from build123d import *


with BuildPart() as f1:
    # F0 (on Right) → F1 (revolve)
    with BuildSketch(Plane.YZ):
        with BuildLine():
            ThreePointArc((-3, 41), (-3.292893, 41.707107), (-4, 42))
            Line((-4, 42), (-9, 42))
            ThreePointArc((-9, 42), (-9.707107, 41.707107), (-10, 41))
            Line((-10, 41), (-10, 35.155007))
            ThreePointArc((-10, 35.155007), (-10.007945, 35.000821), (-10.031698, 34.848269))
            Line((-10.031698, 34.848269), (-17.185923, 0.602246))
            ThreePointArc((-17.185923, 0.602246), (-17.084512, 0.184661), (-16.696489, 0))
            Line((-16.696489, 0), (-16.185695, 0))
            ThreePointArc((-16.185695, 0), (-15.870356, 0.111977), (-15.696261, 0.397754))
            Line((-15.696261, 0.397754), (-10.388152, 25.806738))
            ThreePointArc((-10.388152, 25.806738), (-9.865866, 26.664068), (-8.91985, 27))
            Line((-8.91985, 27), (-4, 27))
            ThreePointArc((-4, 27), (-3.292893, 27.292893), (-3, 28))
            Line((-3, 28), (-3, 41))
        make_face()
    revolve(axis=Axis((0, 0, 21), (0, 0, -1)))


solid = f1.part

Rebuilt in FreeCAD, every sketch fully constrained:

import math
import FreeCAD as App
import Part
import Sketcher

doc = App.newDocument("Part")
body = doc.addObject("PartDesign::Body", "Body")

# Sketch on YZ plane
sketch1 = body.newObject("Sketcher::SketchObject", "Sketch")
sketch1.AttachmentSupport = (doc.getObject("YZ_Plane"), [""])
sketch1.MapMode = "FlatFace"
sketch1.addGeometry([
    Part.ArcOfCircle(Part.Circle(App.Vector(-3.999999, 41.000001, 0), App.Vector(0, 0, 1), 0.999999), math.radians(-0.000043), math.radians(90.000043)),  # 0
    Part.LineSegment(App.Vector(-4, 42, 0), App.Vector(-9, 42, 0)),  # 1
    Part.ArcOfCircle(Part.Circle(App.Vector(-9.000001, 41.000001, 0), App.Vector(0, 0, 1), 0.999999), math.radians(89.999957), math.radians(180.000043)),  # 2
    Part.LineSegment(App.Vector(-10, 41, 0), App.Vector(-10, 35.155007, 0)),  # 3
    Part.ArcOfCircle(Part.Circle(App.Vector(-11.499877, 35.154996, 0), App.Vector(0, 0, 1), 1.499877), math.radians(-11.800315), math.radians(0.000421)),  # 4
    Part.LineSegment(App.Vector(-10.031698, 34.848269, 0), App.Vector(-17.185923, 0.602246, 0)),  # 5
    Part.ArcOfCircle(Part.Circle(App.Vector(-16.69649, 0.499999, 0), App.Vector(0, 0, 1), 0.499999), math.radians(168.200087), math.radians(270.000137)),  # 6
    Part.LineSegment(App.Vector(-16.696489, 0, 0), App.Vector(-16.185695, 0, 0)),  # 7
    Part.ArcOfCircle(Part.Circle(App.Vector(-16.185693, 0.499998, 0), App.Vector(0, 0, 1), 0.499998), math.radians(-90.000183), math.radians(-11.799567)),  # 8
    Part.LineSegment(App.Vector(-15.696261, 0.397754, 0), App.Vector(-10.388152, 25.806738, 0)),  # 9
    Part.ArcOfCircle(Part.Circle(App.Vector(-8.919851, 25.500001, 0), App.Vector(0, 0, 1), 1.499999), math.radians(89.999969), math.radians(168.200282)),  # 10
    Part.LineSegment(App.Vector(-8.91985, 27, 0), App.Vector(-4, 27, 0)),  # 11
    Part.ArcOfCircle(Part.Circle(App.Vector(-3.999999, 27.999999, 0), App.Vector(0, 0, 1), 0.999999), math.radians(-90.000043), math.radians(0.000043)),  # 12
    Part.LineSegment(App.Vector(-3, 28, 0), App.Vector(-3, 41, 0)),  # 13
], False)
sketch1.addConstraint([
    Sketcher.Constraint("Coincident", 0, 2, 1, 1),
    Sketcher.Constraint("Coincident", 1, 2, 2, 1),
    Sketcher.Constraint("Coincident", 2, 2, 3, 1),
    Sketcher.Constraint("Coincident", 3, 2, 4, 2),
    Sketcher.Constraint("Coincident", 4, 1, 5, 1),
    Sketcher.Constraint("Coincident", 5, 2, 6, 1),
    Sketcher.Constraint("Coincident", 6, 2, 7, 1),
    Sketcher.Constraint("Coincident", 7, 2, 8, 1),
    Sketcher.Constraint("Coincident", 8, 2, 9, 1),
    Sketcher.Constraint("Coincident", 9, 2, 10, 2),
    Sketcher.Constraint("Coincident", 10, 1, 11, 1),
    Sketcher.Constraint("Coincident", 11, 2, 12, 1),
    Sketcher.Constraint("Coincident", 12, 2, 13, 1),
    Sketcher.Constraint("Coincident", 13, 2, 0, 1),
    Sketcher.Constraint("Horizontal", 1),
    Sketcher.Constraint("Vertical", 3),
    Sketcher.Constraint("Horizontal", 7),
    Sketcher.Constraint("Horizontal", 11),
    Sketcher.Constraint("Vertical", 13),
    Sketcher.Constraint("PointOnObject", 6, 2, -1),
    Sketcher.Constraint("Radius", 0, 0.999999),
    Sketcher.Constraint("Radius", 2, 0.999999),
    Sketcher.Constraint("Radius", 12, 0.999999),
    Sketcher.Constraint("Radius", 6, 0.499999),
    Sketcher.Constraint("Radius", 10, 1.499999),
    Sketcher.Constraint("DistanceX", 1, 2, 1, 1, 5.0),
    Sketcher.Constraint("DistanceY", 13, 1, 13, 2, 13.0),
    Sketcher.Constraint("DistanceX", 0, 3, -1, 1, 3.999999),
    Sketcher.Constraint("DistanceY", -1, 1, 0, 3, 41.000001),
    Sketcher.Constraint("DistanceX", 2, 3, -1, 1, 9.000001),
    Sketcher.Constraint("DistanceY", -1, 1, 12, 3, 27.999999),
    Sketcher.Constraint("DistanceX", 0, 2, -1, 1, 4.0),
    Sketcher.Constraint("DistanceY", -1, 1, 2, 2, 41.0),
    Sketcher.Constraint("DistanceX", 11, 2, -1, 1, 4.0),
    Sketcher.Constraint("DistanceY", -1, 1, 12, 2, 28.0),
    Sketcher.Constraint("DistanceY", 8, 3, 12, 3, 27.500001),
    Sketcher.Constraint("Radius", 4, 1.499877),
    Sketcher.Constraint("DistanceY", 8, 3, 4, 3, 34.654998),
    Sketcher.Constraint("DistanceX", 11, 1, 11, 2, 4.91985),
    Sketcher.Constraint("DistanceX", 4, 1, -1, 1, 10.031698),
    Sketcher.Constraint("DistanceX", 9, 2, 10, 3, 1.468301),
    Sketcher.Constraint("DistanceX", 9, 2, 10, 1, 1.468302),
    Sketcher.Constraint("DistanceX", 7, 1, 7, 2, 0.510794),
    Sketcher.Constraint("DistanceY", 3, 2, 3, 1, 5.844993),
    Sketcher.Constraint("DistanceX", 6, 3, -1, 1, 16.69649),
    Sketcher.Constraint("DistanceX", 6, 2, -1, 1, 16.696489),
    Sketcher.Constraint("DistanceX", 8, 2, -1, 1, 15.696261),
    Sketcher.Constraint("DistanceX", 5, 2, 8, 3, 1.00023),
    Sketcher.Constraint("DistanceY", 8, 3, 5, 2, 0.102248),
])
revolution = body.newObject("PartDesign::Revolution", "Revolution")
revolution.Profile = sketch1
revolution.ReferenceAxis = (sketch1, ["V_Axis"])
revolution.Angle = 360

doc.recompute()
